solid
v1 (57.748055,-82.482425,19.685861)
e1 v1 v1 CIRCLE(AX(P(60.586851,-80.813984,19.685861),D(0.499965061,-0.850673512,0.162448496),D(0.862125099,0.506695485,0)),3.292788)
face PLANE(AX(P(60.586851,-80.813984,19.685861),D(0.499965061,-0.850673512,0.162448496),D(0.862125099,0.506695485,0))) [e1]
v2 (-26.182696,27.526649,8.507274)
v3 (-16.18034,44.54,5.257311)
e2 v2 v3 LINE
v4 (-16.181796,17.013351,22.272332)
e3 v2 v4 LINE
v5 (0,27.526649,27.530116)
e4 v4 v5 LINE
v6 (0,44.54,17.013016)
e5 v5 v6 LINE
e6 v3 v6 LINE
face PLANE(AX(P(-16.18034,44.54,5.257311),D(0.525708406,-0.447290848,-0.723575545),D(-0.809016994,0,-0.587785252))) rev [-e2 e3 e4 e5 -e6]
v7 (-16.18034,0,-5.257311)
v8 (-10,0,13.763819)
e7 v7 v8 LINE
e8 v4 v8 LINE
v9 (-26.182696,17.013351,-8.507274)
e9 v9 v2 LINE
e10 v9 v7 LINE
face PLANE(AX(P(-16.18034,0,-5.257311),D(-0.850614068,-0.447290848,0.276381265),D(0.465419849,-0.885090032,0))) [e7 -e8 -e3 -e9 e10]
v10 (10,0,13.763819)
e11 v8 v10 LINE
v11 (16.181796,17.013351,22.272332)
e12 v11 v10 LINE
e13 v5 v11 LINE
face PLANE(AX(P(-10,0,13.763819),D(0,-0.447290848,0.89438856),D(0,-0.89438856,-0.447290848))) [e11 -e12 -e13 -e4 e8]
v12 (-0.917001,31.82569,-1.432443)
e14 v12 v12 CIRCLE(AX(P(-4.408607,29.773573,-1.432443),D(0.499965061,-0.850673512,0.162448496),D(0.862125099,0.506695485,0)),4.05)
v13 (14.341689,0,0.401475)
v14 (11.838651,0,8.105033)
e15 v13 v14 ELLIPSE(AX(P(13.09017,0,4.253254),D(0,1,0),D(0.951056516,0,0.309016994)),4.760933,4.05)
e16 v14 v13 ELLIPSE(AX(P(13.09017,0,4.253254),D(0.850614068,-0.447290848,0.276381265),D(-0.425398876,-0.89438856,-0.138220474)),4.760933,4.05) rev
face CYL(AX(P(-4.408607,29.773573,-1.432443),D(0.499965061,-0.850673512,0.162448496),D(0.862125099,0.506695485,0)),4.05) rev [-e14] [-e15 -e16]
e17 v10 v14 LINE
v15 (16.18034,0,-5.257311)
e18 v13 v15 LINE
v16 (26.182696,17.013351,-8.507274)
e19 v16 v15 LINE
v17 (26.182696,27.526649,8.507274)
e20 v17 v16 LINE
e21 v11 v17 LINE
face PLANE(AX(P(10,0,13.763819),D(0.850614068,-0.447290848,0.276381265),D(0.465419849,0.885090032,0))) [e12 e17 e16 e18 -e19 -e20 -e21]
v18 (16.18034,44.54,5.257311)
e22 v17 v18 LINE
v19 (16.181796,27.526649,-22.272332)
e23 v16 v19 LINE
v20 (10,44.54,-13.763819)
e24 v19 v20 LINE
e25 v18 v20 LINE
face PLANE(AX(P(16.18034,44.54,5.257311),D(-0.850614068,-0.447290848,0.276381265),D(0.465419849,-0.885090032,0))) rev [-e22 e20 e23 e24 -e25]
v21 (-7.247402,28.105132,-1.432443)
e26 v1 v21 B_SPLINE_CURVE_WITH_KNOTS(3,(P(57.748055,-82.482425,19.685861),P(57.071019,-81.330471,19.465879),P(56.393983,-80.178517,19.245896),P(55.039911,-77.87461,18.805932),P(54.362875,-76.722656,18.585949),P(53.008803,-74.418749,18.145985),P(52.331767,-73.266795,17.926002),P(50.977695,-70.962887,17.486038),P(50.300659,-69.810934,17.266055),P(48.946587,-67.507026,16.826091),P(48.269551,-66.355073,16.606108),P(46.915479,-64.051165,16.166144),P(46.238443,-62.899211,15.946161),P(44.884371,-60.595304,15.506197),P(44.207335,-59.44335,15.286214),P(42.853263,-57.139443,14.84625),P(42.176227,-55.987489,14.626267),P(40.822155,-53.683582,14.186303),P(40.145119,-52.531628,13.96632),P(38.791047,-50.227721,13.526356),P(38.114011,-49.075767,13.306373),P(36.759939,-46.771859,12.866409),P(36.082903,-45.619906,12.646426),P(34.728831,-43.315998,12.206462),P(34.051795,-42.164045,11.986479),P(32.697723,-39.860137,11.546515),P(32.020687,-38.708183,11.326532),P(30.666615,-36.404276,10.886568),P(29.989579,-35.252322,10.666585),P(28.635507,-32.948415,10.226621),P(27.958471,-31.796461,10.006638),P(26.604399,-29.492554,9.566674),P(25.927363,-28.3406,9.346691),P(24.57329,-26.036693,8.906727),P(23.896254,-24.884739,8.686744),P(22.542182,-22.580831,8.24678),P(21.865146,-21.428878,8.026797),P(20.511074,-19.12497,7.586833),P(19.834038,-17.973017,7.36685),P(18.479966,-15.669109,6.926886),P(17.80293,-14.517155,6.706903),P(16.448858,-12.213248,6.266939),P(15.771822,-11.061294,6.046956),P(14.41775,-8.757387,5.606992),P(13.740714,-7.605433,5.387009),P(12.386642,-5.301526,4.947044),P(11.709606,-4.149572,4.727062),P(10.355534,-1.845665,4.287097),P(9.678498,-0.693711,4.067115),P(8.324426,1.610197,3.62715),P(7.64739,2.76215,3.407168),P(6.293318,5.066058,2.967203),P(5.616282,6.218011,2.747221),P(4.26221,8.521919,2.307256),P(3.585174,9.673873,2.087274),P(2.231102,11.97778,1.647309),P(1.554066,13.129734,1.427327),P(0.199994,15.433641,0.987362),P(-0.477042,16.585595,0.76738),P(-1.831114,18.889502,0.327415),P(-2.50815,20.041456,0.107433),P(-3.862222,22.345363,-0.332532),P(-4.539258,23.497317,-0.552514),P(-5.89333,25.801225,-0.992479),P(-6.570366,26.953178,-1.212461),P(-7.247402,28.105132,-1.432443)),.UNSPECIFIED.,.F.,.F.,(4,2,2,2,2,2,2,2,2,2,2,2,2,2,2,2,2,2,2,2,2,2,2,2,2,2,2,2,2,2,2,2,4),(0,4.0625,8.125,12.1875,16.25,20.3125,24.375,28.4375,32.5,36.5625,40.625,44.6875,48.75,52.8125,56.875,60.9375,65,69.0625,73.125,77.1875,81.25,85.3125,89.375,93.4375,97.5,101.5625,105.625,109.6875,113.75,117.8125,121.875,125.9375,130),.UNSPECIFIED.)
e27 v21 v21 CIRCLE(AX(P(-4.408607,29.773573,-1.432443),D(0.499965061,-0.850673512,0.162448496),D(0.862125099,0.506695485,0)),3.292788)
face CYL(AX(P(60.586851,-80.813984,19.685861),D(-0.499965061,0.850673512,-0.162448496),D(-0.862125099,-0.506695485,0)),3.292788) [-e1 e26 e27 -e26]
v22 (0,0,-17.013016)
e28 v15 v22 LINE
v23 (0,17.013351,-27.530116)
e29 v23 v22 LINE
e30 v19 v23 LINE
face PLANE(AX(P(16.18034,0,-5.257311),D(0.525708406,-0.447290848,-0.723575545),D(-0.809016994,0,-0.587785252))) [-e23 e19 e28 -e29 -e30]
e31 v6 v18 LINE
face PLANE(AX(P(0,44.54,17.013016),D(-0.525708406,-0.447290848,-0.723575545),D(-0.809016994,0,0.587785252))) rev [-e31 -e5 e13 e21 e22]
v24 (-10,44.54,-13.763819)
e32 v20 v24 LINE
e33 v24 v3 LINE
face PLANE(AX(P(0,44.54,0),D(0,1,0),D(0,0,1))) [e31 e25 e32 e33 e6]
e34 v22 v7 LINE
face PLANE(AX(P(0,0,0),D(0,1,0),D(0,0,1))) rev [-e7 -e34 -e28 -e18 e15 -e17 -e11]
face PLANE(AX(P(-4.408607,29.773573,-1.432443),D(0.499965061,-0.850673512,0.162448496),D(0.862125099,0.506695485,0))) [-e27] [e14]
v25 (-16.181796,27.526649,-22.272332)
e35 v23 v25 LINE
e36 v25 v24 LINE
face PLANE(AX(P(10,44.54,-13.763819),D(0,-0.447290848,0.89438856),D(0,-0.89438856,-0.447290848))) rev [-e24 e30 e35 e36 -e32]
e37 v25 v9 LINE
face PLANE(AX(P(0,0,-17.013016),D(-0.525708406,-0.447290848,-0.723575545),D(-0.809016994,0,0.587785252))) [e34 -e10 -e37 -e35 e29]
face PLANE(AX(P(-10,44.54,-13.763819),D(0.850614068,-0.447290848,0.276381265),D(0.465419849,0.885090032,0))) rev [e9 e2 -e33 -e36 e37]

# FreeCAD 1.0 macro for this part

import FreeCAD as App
import Part
import Sketcher
Q = App.Units.Quantity


def add_polygon(sketch, points):
    """Adds a closed chain of lines whose ends are joined by coincident constraints."""
    first, n = sketch.GeometryCount, len(points)
    for a, b in zip(points, points[1:] + points[:1]):
        sketch.addGeometry(Part.LineSegment(App.Vector(*a, 0), App.Vector(*b, 0)), False)
    for i in range(n):
        sketch.addConstraint(Sketcher.Constraint("Coincident", first + i, 2, first + (i + 1) % n, 1))

doc = App.newDocument("Part")
params = doc.addObject("Spreadsheet::Sheet", "Params")
for row, (alias, value) in enumerate([
    ("sketch1_width", "20 mm"),
    ("pad1_length", "44.54 mm"),
    ("pad1_taper", "26.57 deg"),
    ("sketch2_width", "20 mm"),
    ("pocket1_length", "44.54 mm"),
    ("pocket1_taper", "26.57 deg"),
    ("sketch3_diameter", "8.1 mm"),
    ("pocket2_length", "35 mm"),
    ("pad2_length", "130 mm"),
], start=1):
    params.set(f"A{row}", alias)
    params.set(f"B{row}", "=" + value)
    params.setAlias(f"B{row}", alias)

body = doc.addObject("PartDesign::Body", "Body")

# Sketch on XZ plane
sketch1 = body.newObject("Sketcher::SketchObject", "Sketch")
sketch1.AttachmentSupport = (doc.getObject("XZ_Plane"), [""])
sketch1.MapMode = "FlatFace"
add_polygon(sketch1, [(0, -17), (-16, -5), (-10, 14), (10, 14), (16, -5)])  # lines 0-4
sketch1.addConstraint([
    Sketcher.Constraint("Horizontal", 2),
    Sketcher.Constraint("Symmetric", 0, 2, 3, 2, -2),
    Sketcher.Constraint("PointOnObject", 4, 2, -2),
    Sketcher.Constraint("Equal", 0, 1),
    Sketcher.Constraint("Equal", 1, 3),
    Sketcher.Constraint("DistanceX", 2, 1, 2, 2, 20.0),
    Sketcher.Constraint("Angle", 0, Q("144 deg")),
    Sketcher.Constraint("Angle", 1, Q("72 deg")),
    Sketcher.Constraint("DistanceY", 0, 2, -1, 1, 5.257311),
])
sketch1.setExpression("Constraints[10]", "Params.sketch1_width")
pad1 = body.newObject("PartDesign::Pad", "Pad")
pad1.Profile = sketch1
pad1.setExpression("Length", "Params.pad1_length")
pad1.Reversed = True
pad1.setExpression("TaperAngle", "Params.pad1_taper")

# Sketch on XZ plane
sketch2 = body.newObject("Sketcher::SketchObject", "Sketch001")
sketch2.AttachmentSupport = (doc.getObject("XZ_Plane"), [""])
sketch2.MapMode = "FlatFace"
sketch2.AttachmentOffset = App.Placement(App.Vector(0, 0, -44.54), App.Rotation())
add_polygon(sketch2, [(-78, -80), (-78, 72), (78, 72), (78, -80)])  # lines 0-3
add_polygon(sketch2, [(16, 5), (0, 17), (-16, 5), (-10, -14), (10, -14)])  # lines 4-8
sketch2.addConstraint([
    Sketcher.Constraint("Vertical", 0),
    Sketcher.Constraint("Horizontal", 1),
    Sketcher.Constraint("Vertical", 2),
    Sketcher.Constraint("Horizontal", 3),
    Sketcher.Constraint("Horizontal", 7),
    Sketcher.Constraint("Symmetric", 5, 2, 8, 2, -2),
    Sketcher.Constraint("PointOnObject", 4, 2, -2),
    Sketcher.Constraint("Equal", 5, 6),
    Sketcher.Constraint("Equal", 6, 8),
    Sketcher.Constraint("DistanceX", 7, 1, 7, 2, 20.0),
    Sketcher.Constraint("Angle", 4, Q("144 deg")),
    Sketcher.Constraint("Angle", 6, Q("-72 deg")),
    Sketcher.Constraint("DistanceX", 1, 1, 1, 2, 156.308),
    Sketcher.Constraint("DistanceY", 0, 1, 0, 2, 152.161),
    Sketcher.Constraint("DistanceX", 0, 2, -1, 1, 78.154),
    Sketcher.Constraint("DistanceY", -1, 1, 0, 2, 71.827),
    Sketcher.Constraint("DistanceY", -1, 1, 5, 2, 5.257311),
])
sketch2.setExpression("Constraints[18]", "Params.sketch2_width")
pocket1 = body.newObject("PartDesign::Pocket", "Pocket")
pocket1.Profile = sketch2
pocket1.setExpression("Length", "Params.pocket1_length")
pocket1.Reversed = True
pocket1.setExpression("TaperAngle", "Params.pocket1_taper")

# Sketch on an angled plane
sketch3 = body.newObject("Sketcher::SketchObject", "Sketch002")
sketch3.Placement = App.Placement(App.Vector(3.617528, -6.155101, 1.175406), App.Rotation(App.Vector(0.440823233, 0.088511148, -0.893219264), App.Vector(0.745459465, 0.518189495, 0.419249129), App.Vector(0.499965061, -0.850673512, 0.162448496), "ZXY"))
sketch3.addGeometry(Part.Circle(App.Vector(2, 11.5, 0), App.Vector(0, 0, 1), 4), False)
sketch3.addConstraint([
    Sketcher.Constraint("Diameter", 0, 8.1),
    Sketcher.Constraint("DistanceX", -1, 1, 0, 3, 1.971363),
    Sketcher.Constraint("DistanceY", -1, 1, 0, 3, 11.541364),
])
sketch3.setExpression("Constraints[0]", "Params.sketch3_diameter")
pocket2 = body.newObject("PartDesign::Pocket", "Pocket001")
pocket2.Profile = sketch3
pocket2.setExpression("Length", "Params.pocket2_length")

# Sketch on an angled plane
sketch4 = body.newObject("Sketcher::SketchObject", "Sketch003")
sketch4.Placement = App.Placement(App.Vector(-13.881249, 23.618472, -4.510291), App.Rotation(App.Vector(0.866045575, 0.491090823, -0.093780945), App.Vector(0, 0.187574997, 0.982250284), App.Vector(0.499965061, -0.850673512, 0.162448496), "ZXY"))
sketch4.addGeometry(Part.Circle(App.Vector(10.9, 4.2, 0), App.Vector(0, 0, 1), 3.3), False)
sketch4.addConstraint([
    Sketcher.Constraint("Diameter", 0, 6.585576),
    Sketcher.Constraint("DistanceX", -1, 1, 0, 3, 10.93781),
    Sketcher.Constraint("DistanceY", -1, 1, 0, 3, 4.17776),
])
pad2 = body.newObject("PartDesign::Pad", "Pad001")
pad2.Profile = sketch4
pad2.setExpression("Length", "Params.pad2_length")

doc.recompute()
